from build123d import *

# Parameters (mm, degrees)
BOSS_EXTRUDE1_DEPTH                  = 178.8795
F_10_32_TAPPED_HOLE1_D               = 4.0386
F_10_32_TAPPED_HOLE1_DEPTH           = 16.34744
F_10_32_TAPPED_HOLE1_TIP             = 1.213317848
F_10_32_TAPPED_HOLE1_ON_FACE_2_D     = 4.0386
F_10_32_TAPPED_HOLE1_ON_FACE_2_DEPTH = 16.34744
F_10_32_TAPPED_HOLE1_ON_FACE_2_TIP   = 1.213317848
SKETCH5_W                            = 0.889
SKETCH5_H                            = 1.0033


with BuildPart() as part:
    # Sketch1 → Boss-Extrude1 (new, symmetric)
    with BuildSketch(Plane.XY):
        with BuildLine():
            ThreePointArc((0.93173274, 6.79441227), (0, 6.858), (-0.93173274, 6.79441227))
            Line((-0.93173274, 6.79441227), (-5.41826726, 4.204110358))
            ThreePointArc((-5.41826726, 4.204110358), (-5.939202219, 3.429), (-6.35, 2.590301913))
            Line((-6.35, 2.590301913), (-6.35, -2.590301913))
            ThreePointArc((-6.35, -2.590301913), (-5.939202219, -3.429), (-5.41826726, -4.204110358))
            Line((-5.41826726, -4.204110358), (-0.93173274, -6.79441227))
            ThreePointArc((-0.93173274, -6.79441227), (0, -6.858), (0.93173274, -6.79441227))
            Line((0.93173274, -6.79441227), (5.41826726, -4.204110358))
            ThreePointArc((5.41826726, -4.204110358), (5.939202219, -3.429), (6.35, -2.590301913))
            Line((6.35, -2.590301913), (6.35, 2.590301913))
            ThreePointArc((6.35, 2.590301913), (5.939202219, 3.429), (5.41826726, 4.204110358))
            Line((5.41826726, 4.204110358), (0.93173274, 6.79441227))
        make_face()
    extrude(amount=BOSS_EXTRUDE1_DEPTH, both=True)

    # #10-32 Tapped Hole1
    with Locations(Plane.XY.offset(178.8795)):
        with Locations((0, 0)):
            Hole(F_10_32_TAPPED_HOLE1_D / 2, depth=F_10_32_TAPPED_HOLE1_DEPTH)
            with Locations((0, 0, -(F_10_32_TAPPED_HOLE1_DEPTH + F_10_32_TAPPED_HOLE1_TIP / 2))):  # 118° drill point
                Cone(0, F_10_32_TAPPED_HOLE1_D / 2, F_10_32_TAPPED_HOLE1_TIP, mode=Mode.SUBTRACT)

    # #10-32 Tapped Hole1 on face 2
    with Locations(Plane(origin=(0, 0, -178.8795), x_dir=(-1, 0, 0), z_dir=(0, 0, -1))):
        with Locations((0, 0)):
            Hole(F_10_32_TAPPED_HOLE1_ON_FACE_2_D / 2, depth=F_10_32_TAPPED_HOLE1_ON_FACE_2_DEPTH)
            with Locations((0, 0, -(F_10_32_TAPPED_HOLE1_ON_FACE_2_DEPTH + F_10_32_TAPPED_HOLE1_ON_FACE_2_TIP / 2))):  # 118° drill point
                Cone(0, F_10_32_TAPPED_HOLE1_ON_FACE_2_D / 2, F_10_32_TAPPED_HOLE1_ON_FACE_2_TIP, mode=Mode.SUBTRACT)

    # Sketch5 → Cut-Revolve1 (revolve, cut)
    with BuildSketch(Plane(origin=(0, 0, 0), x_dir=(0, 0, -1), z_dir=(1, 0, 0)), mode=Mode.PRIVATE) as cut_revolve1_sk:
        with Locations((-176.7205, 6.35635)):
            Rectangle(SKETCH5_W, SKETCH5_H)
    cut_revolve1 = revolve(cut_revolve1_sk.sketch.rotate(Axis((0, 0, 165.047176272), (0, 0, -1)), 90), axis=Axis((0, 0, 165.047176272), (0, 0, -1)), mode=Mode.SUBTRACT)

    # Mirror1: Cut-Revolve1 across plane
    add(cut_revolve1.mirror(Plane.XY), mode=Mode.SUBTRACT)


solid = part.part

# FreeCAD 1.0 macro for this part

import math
import FreeCAD as App
import Part
import Sketcher
Q = App.Units.Quantity

doc = App.newDocument("Part")
body = doc.addObject("PartDesign::Body", "Body")

# Sketch on XY plane
sketch1 = doc.addObject("Sketcher::SketchObject", "Sketch")
body.addObject(sketch1)
sketch1.AttachmentSupport = (doc.XY_Plane, [""])
sketch1.MapMode = "FlatFace"
sketch1.addGeometry([
    Part.ArcOfCircle(Part.Circle(App.Vector(0, 0, 0), App.Vector(0, 0, 1), 6.858), math.radians(82.191607), math.radians(97.808393)),  # 0
    Part.LineSegment(App.Vector(-0.931733, 6.794412, 0), App.Vector(-5.418267, 4.20411, 0)),  # 1
    Part.ArcOfCircle(Part.Circle(App.Vector(0, 0, 0), App.Vector(0, 0, 1), 6.858), math.radians(142.191607), math.radians(157.808393)),  # 2
    Part.LineSegment(App.Vector(-6.35, 2.590302, 0), App.Vector(-6.35, -2.590302, 0)),  # 3
    Part.ArcOfCircle(Part.Circle(App.Vector(0, 0, 0), App.Vector(0, 0, 1), 6.858), math.radians(-157.808393), math.radians(-142.191607)),  # 4
    Part.LineSegment(App.Vector(-5.418267, -4.20411, 0), App.Vector(-0.931733, -6.794412, 0)),  # 5
    Part.ArcOfCircle(Part.Circle(App.Vector(0, 0, 0), App.Vector(0, 0, 1), 6.858), math.radians(-97.808393), math.radians(-82.191607)),  # 6
    Part.LineSegment(App.Vector(0.931733, -6.794412, 0), App.Vector(5.418267, -4.20411, 0)),  # 7
    Part.ArcOfCircle(Part.Circle(App.Vector(0, 0, 0), App.Vector(0, 0, 1), 6.858), math.radians(-37.808393), math.radians(-22.191607)),  # 8
    Part.LineSegment(App.Vector(6.35, -2.590302, 0), App.Vector(6.35, 2.590302, 0)),  # 9
    Part.ArcOfCircle(Part.Circle(App.Vector(0, 0, 0), App.Vector(0, 0, 1), 6.858), math.radians(22.191607), math.radians(37.808393)),  # 10
    Part.LineSegment(App.Vector(5.418267, 4.20411, 0), App.Vector(0.931733, 6.794412, 0)),  # 11
], False)
sketch1.addConstraint([
    Sketcher.Constraint("Coincident", 0, 2, 1, 1),
    Sketcher.Constraint("Coincident", 1, 2, 2, 1),
    Sketcher.Constraint("Coincident", 2, 2, 3, 1),
    Sketcher.Constraint("Coincident", 3, 2, 4, 1),
    Sketcher.Constraint("Coincident", 4, 2, 5, 1),
    Sketcher.Constraint("Coincident", 5, 2, 6, 1),
    Sketcher.Constraint("Coincident", 6, 2, 7, 1),
    Sketcher.Constraint("Coincident", 7, 2, 8, 1),
    Sketcher.Constraint("Coincident", 8, 2, 9, 1),
    Sketcher.Constraint("Coincident", 9, 2, 10, 1),
    Sketcher.Constraint("Coincident", 10, 2, 11, 1),
    Sketcher.Constraint("Coincident", 11, 2, 0, 1),
    Sketcher.Constraint("Vertical", 3),
    Sketcher.Constraint("Vertical", 9),
    Sketcher.Constraint("Coincident", 0, 3, -1, 1),
    Sketcher.Constraint("Coincident", 2, 3, -1, 1),
    Sketcher.Constraint("Coincident", 4, 3, -1, 1),
    Sketcher.Constraint("Coincident", 6, 3, -1, 1),
    Sketcher.Constraint("Coincident", 8, 3, -1, 1),
    Sketcher.Constraint("Coincident", 10, 3, -1, 1),
    Sketcher.Constraint("Equal", 0, 2),
    Sketcher.Constraint("Equal", 2, 4),
    Sketcher.Constraint("Equal", 4, 6),
    Sketcher.Constraint("Equal", 6, 8),
    Sketcher.Constraint("Equal", 8, 10),
    Sketcher.Constraint("Parallel", 1, 7),
    Sketcher.Constraint("Parallel", 5, 11),
    Sketcher.Constraint("Horizontal", 5, 2, 6, 2),
    Sketcher.Constraint("Horizontal", 4, 2, 7, 2),
    Sketcher.Constraint("Horizontal", 3, 2, 8, 2),
    Sketcher.Constraint("Horizontal", 1, 2, 10, 2),
    Sketcher.Constraint("Vertical", 1, 2, 4, 2),
    Sketcher.Constraint("Radius", 0, Q("0.27 in")),
    Sketcher.Constraint("Angle", 1, Q("-150 deg")),
    Sketcher.Constraint("DistanceX", 2, 2, -1, 1, Q("0.25 in")),
    Sketcher.Constraint("DistanceX", 4, 2, 6, 2, Q("0.25 in")),
])
pad1 = doc.addObject("PartDesign::Pad", "Pad")
body.addObject(pad1)
pad1.Profile = sketch1
pad1.Length = Q("14.085 in")
pad1.Midplane = True

# Sketch on XY plane
sketch2 = doc.addObject("Sketcher::SketchObject", "Sketch001")
body.addObject(sketch2)
sketch2.AttachmentSupport = (doc.XY_Plane, [""])
sketch2.MapMode = "FlatFace"
sketch2.AttachmentOffset = App.Placement(App.Vector(0, 0, 7.0425 * 25.4), App.Rotation())
sketch2.addGeometry(Part.Circle(App.Vector(0, 0, 0), App.Vector(0, 0, 1), 2.0193), False)
sketch2.addConstraint([
    Sketcher.Constraint("Coincident", 0, 3, -1, 1),
    Sketcher.Constraint("Diameter", 0, Q("0.159 in")),
])
doc.recompute()
hole = doc.addObject("PartDesign::Hole", "Hole")
body.addObject(hole)
hole.Profile = sketch2
hole.ThreadType = "None"
hole.Diameter = Q("0.159 in")
hole.DepthType = "Dimension"
hole.Depth = Q("0.6436 in")
hole.DrillPoint = "Angled"
hole.DrillPointAngle = 118

# Sketch on XY plane
sketch3 = doc.addObject("Sketcher::SketchObject", "Sketch002")
body.addObject(sketch3)
sketch3.AttachmentSupport = (doc.XY_Plane, [""])
sketch3.MapMode = "FlatFace"
sketch3.AttachmentOffset = App.Placement(App.Vector(0, 0, -7.0425 * 25.4), App.Rotation())
sketch3.addGeometry(Part.Circle(App.Vector(0, 0, 0), App.Vector(0, 0, 1), 2.0193), False)
sketch3.addConstraint([
    Sketcher.Constraint("Coincident", 0, 3, -1, 1),
    Sketcher.Constraint("Diameter", 0, Q("0.159 in")),
])
doc.recompute()
hole2 = doc.addObject("PartDesign::Hole", "Hole001")
body.addObject(hole2)
hole2.Profile = sketch3
hole2.ThreadType = "None"
hole2.Diameter = Q("0.159 in")
hole2.DepthType = "Dimension"
hole2.Depth = Q("0.6436 in")
hole2.DrillPoint = "Angled"
hole2.DrillPointAngle = 118
hole2.Reversed = True

# Sketch on YZ plane
sketch4 = doc.addObject("Sketcher::SketchObject", "Sketch003")
body.addObject(sketch4)
sketch4.AttachmentSupport = (doc.YZ_Plane, [""])
sketch4.MapMode = "FlatFace"
sketch4.addGeometry([
    Part.LineSegment(App.Vector(6.858, 177.165, 0), App.Vector(5.8547, 177.165, 0)),
    Part.LineSegment(App.Vector(5.8547, 177.165, 0), App.Vector(5.8547, 176.276, 0)),
    Part.LineSegment(App.Vector(5.8547, 176.276, 0), App.Vector(6.858, 176.276, 0)),
    Part.LineSegment(App.Vector(6.858, 176.276, 0), App.Vector(6.858, 177.165, 0)),
], False)
sketch4.addConstraint([
    Sketcher.Constraint("Coincident", 0, 2, 1, 1),
    Sketcher.Constraint("Coincident", 1, 2, 2, 1),
    Sketcher.Constraint("Coincident", 2, 2, 3, 1),
    Sketcher.Constraint("Coincident", 3, 2, 0, 1),
    Sketcher.Constraint("Horizontal", 0),
    Sketcher.Constraint("Vertical", 1),
    Sketcher.Constraint("Horizontal", 2),
    Sketcher.Constraint("Vertical", 3),
    Sketcher.Constraint("DistanceY", 1, 2, 1, 1, Q("0.035 in")),
    Sketcher.Constraint("DistanceY", -1, 1, 1, 2, Q("6.94 in")),
    Sketcher.Constraint("DistanceX", -1, 1, 2, 2, Q("0.27 in")),
    Sketcher.Constraint("DistanceX", 0, 2, 0, 1, Q("0.0395 in")),
])
groove = doc.addObject("PartDesign::Groove", "Groove")
body.addObject(groove)
groove.Profile = sketch4
groove.ReferenceAxis = (sketch4, ["V_Axis"])
groove.Angle = 360
doc.recompute()

mirrored = doc.addObject("PartDesign::Mirrored", "Mirrored")
body.addObject(mirrored)
mirrored.Originals = [groove]
mirrored.MirrorPlane = (doc.XY_Plane, [""])
body.Tip = mirrored

doc.recompute()
